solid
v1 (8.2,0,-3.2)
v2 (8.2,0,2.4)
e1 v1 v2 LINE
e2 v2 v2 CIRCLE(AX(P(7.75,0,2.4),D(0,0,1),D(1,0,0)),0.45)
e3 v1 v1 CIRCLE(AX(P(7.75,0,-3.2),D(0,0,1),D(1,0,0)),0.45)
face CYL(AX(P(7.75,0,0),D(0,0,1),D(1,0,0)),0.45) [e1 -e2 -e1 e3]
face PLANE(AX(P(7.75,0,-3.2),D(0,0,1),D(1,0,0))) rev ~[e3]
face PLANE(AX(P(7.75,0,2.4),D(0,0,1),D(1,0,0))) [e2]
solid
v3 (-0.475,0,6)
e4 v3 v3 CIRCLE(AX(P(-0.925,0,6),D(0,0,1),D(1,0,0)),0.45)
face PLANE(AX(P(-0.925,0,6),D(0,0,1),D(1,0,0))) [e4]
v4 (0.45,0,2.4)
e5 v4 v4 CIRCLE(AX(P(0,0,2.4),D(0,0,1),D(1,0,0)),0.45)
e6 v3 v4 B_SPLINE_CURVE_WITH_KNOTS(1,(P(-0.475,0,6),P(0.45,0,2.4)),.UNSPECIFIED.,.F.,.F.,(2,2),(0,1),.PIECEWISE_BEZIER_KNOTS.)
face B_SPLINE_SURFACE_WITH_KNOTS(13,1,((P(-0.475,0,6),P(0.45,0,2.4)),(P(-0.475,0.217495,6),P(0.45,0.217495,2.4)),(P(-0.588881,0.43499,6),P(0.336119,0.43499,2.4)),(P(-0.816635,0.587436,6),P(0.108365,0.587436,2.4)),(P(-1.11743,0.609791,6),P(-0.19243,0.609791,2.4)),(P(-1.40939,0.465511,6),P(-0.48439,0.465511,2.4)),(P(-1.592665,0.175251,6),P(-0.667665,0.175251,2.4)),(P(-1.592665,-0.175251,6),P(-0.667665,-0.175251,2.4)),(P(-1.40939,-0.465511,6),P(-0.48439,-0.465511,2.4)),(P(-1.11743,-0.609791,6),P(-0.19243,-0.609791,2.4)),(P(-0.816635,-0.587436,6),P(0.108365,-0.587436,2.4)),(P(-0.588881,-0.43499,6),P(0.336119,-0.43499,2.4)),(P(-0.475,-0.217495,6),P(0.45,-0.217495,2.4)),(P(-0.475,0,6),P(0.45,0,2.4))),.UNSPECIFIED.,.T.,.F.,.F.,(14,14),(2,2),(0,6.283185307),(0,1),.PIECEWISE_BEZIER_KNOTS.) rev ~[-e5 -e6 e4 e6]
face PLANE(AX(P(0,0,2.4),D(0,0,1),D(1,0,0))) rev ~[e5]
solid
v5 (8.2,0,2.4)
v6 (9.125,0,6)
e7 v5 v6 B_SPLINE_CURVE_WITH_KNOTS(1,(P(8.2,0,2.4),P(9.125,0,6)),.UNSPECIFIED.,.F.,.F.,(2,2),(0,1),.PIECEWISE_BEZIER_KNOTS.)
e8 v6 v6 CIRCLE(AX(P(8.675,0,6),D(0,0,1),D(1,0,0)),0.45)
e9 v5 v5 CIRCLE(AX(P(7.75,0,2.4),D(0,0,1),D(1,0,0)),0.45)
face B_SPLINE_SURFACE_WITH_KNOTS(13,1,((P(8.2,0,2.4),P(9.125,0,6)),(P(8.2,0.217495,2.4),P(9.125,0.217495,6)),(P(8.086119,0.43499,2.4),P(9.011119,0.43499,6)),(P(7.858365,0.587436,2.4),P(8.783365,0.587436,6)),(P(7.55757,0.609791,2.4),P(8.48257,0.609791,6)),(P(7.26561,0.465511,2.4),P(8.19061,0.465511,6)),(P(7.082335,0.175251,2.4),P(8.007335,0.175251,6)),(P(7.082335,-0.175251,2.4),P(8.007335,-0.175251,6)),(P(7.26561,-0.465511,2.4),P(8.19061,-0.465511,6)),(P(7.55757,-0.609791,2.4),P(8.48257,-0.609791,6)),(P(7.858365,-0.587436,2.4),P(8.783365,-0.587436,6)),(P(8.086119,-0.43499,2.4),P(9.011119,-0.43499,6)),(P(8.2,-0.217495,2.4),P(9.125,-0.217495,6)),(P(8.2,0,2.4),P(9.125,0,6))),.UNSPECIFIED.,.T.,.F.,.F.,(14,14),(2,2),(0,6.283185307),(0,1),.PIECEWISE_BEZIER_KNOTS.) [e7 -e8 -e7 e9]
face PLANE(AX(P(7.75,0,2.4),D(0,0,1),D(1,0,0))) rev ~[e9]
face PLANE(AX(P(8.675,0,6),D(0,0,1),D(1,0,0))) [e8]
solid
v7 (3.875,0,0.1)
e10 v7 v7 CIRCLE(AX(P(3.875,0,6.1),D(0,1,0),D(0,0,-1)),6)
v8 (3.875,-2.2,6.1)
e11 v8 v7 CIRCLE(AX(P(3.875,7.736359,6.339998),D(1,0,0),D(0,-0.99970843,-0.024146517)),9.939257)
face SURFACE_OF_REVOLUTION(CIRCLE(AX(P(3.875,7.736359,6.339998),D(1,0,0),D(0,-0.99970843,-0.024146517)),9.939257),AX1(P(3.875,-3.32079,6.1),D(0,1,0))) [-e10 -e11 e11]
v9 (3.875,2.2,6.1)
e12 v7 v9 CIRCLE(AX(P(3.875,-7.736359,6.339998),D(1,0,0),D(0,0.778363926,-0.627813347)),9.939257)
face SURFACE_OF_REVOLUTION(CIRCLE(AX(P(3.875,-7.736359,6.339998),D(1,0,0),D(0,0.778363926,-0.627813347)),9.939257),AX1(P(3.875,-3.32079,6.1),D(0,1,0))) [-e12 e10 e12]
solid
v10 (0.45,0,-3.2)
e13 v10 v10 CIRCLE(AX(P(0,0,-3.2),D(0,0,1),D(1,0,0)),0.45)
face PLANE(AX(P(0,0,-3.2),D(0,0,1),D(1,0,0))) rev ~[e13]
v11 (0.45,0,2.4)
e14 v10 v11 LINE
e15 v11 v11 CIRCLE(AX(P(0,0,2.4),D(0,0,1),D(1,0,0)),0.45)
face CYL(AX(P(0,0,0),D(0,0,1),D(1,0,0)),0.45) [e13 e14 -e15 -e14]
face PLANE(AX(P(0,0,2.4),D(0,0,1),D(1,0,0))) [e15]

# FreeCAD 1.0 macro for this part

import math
import FreeCAD as App
import Part
import Sketcher
from FreeCAD import Vector
Q = App.Units.Quantity

doc = App.newDocument("Part")
body = doc.addObject("PartDesign::Body", "Body")
body.AllowCompound = True

# Sketch on XY plane
sketch1 = body.newObject("Sketcher::SketchObject", "Sketch")
sketch1.AttachmentSupport = (doc.getObject("XY_Plane"), [""])
sketch1.MapMode = "FlatFace"
sketch1.addGeometry([
    Part.Circle(Vector(0, 0, 0), Vector(0, 0, 1), 0.45),
    Part.Circle(Vector(7.75, 0, 0), Vector(0, 0, 1), 0.45),
], False)
sketch1.addConstraint([
    Sketcher.Constraint("Coincident", 0, 3, -1, 1),
    Sketcher.Constraint("Equal", 0, 1),
    Sketcher.Constraint("PointOnObject", 1, 3, -1),
    Sketcher.Constraint("Diameter", 0, Q("0.9 mm")),
    Sketcher.Constraint("DistanceX", -1, 1, 1, 3, Q("7.75 mm")),
])
pad1 = body.newObject("PartDesign::Pad", "Pad")
pad1.Profile = sketch1
pad1.Type = "TwoLengths"
pad1.Length = 2.4
pad1.Length2 = 3.2
body2 = doc.addObject("PartDesign::Body", "Body001")

# Sketch on YZ plane
sketch2 = body2.newObject("Sketcher::SketchObject", "Sketch001")
sketch2.AttachmentSupport = (doc.getObject("YZ_Plane001"), [""])
sketch2.MapMode = "FlatFace"
sketch2.AttachmentOffset = App.Placement(Vector(0, 0, 3.875), App.Rotation())
sketch2.addGeometry([
    Part.LineSegment(Vector(2.2, 6.1, 0), Vector(-2.2, 6.1, 0)),
    Part.ArcOfCircle(Part.Circle(Vector(7.736359, 6.339998, 0), Vector(0, 0, 1), 9.939257), math.radians(-178.616372), math.radians(-141.111021)),
    Part.ArcOfCircle(Part.Circle(Vector(-7.736359, 6.339998, 0), Vector(0, 0, 1), 9.939257), math.radians(-38.888979), math.radians(-1.383628)),
], False)
sketch2.addGeometry(Part.LineSegment(Vector(-7.736359, 6.1, 0), Vector(7.736359, 6.1, 0)), True)  # axis
sketch2.addConstraint([
    Sketcher.Constraint("Coincident", 0, 2, 1, 1),
    Sketcher.Constraint("Coincident", 1, 2, 2, 1),
    Sketcher.Constraint("Coincident", 2, 2, 0, 1),
    Sketcher.Constraint("Horizontal", 0),
    Sketcher.Constraint("Horizontal", 3),
    Sketcher.Constraint("Equal", 1, 2),
    Sketcher.Constraint("Symmetric", 1, 3, 2, 3, -2),
    Sketcher.Constraint("Horizontal", 2, 2, 3, 1),
    Sketcher.Constraint("Vertical", 2, 3, 3, 1),
    Sketcher.Constraint("Vertical", 1, 3, 3, 2),
    Sketcher.Constraint("DistanceX", 0, 2, 0, 1, Q("4.4 mm")),
    Sketcher.Constraint("DistanceY", 1, 2, 0, 2, Q("6 mm")),
    Sketcher.Constraint("DistanceY", -1, 1, 0, 2, Q("6.1 mm")),
    Sketcher.Constraint("DistanceY", -1, 1, 1, 3, Q("6.339998 mm")),
])
revolution = body2.newObject("PartDesign::Revolution", "Revolution")
revolution.Profile = sketch2
revolution.ReferenceAxis = (sketch2, ["Axis0"])
revolution.Angle = 360
body3 = doc.addObject("PartDesign::Body", "Body002")

# Sketch on XY plane
sketch3 = body3.newObject("Sketcher::SketchObject", "Sketch002")
sketch3.AttachmentSupport = (doc.getObject("XY_Plane002"), [""])
sketch3.MapMode = "FlatFace"
sketch3.AttachmentOffset = App.Placement(Vector(0, 0, 6), App.Rotation())
sketch3.addGeometry(Part.Circle(Vector(-0.925, 0, 0), Vector(0, 0, 1), 0.45), False)
sketch3.addConstraint([
    Sketcher.Constraint("PointOnObject", 0, 3, -1),
    Sketcher.Constraint("Diameter", 0, Q("0.9 mm")),
    Sketcher.Constraint("DistanceX", 0, 3, -1, 1, Q("0.925 mm")),
])

# Sketch on XY plane
sketch4 = body3.newObject("Sketcher::SketchObject", "Sketch003")
sketch4.AttachmentSupport = (doc.getObject("XY_Plane002"), [""])
sketch4.MapMode = "FlatFace"
sketch4.AttachmentOffset = App.Placement(Vector(0, 0, 2.4), App.Rotation())
sketch4.addGeometry(Part.Circle(Vector(0, 0, 0), Vector(0, 0, 1), 0.45), False)
sketch4.addConstraint([
    Sketcher.Constraint("Coincident", 0, 3, -1, 1),
    Sketcher.Constraint("Diameter", 0, Q("0.9 mm")),
])

additiveloft = body3.newObject("PartDesign::AdditiveLoft", "AdditiveLoft")
additiveloft.Profile = sketch3
additiveloft.Sections = [sketch4]
body4 = doc.addObject("PartDesign::Body", "Body003")

# Sketch on XY plane
sketch5 = body4.newObject("Sketcher::SketchObject", "Sketch004")
sketch5.AttachmentSupport = (doc.getObject("XY_Plane003"), [""])
sketch5.MapMode = "FlatFace"
sketch5.AttachmentOffset = App.Placement(Vector(0, 0, 2.4), App.Rotation())
sketch5.addGeometry(Part.Circle(Vector(7.75, 0, 0), Vector(0, 0, 1), 0.45), False)
sketch5.addConstraint([
    Sketcher.Constraint("PointOnObject", 0, 3, -1),
    Sketcher.Constraint("Diameter", 0, Q("0.9 mm")),
    Sketcher.Constraint("DistanceX", -1, 1, 0, 3, Q("7.75 mm")),
])

# Sketch on XY plane
sketch6 = body4.newObject("Sketcher::SketchObject", "Sketch005")
sketch6.AttachmentSupport = (doc.getObject("XY_Plane003"), [""])
sketch6.MapMode = "FlatFace"
sketch6.AttachmentOffset = App.Placement(Vector(0, 0, 6), App.Rotation())
sketch6.addGeometry(Part.Circle(Vector(8.675, 0, 0), Vector(0, 0, 1), 0.45), False)
sketch6.addConstraint([
    Sketcher.Constraint("PointOnObject", 0, 3, -1),
    Sketcher.Constraint("Diameter", 0, Q("0.9 mm")),
    Sketcher.Constraint("DistanceX", -1, 1, 0, 3, Q("8.675 mm")),
])

additiveloft2 = body4.newObject("PartDesign::AdditiveLoft", "AdditiveLoft001")
additiveloft2.Profile = sketch5
additiveloft2.Sections = [sketch6]

doc.recompute()
